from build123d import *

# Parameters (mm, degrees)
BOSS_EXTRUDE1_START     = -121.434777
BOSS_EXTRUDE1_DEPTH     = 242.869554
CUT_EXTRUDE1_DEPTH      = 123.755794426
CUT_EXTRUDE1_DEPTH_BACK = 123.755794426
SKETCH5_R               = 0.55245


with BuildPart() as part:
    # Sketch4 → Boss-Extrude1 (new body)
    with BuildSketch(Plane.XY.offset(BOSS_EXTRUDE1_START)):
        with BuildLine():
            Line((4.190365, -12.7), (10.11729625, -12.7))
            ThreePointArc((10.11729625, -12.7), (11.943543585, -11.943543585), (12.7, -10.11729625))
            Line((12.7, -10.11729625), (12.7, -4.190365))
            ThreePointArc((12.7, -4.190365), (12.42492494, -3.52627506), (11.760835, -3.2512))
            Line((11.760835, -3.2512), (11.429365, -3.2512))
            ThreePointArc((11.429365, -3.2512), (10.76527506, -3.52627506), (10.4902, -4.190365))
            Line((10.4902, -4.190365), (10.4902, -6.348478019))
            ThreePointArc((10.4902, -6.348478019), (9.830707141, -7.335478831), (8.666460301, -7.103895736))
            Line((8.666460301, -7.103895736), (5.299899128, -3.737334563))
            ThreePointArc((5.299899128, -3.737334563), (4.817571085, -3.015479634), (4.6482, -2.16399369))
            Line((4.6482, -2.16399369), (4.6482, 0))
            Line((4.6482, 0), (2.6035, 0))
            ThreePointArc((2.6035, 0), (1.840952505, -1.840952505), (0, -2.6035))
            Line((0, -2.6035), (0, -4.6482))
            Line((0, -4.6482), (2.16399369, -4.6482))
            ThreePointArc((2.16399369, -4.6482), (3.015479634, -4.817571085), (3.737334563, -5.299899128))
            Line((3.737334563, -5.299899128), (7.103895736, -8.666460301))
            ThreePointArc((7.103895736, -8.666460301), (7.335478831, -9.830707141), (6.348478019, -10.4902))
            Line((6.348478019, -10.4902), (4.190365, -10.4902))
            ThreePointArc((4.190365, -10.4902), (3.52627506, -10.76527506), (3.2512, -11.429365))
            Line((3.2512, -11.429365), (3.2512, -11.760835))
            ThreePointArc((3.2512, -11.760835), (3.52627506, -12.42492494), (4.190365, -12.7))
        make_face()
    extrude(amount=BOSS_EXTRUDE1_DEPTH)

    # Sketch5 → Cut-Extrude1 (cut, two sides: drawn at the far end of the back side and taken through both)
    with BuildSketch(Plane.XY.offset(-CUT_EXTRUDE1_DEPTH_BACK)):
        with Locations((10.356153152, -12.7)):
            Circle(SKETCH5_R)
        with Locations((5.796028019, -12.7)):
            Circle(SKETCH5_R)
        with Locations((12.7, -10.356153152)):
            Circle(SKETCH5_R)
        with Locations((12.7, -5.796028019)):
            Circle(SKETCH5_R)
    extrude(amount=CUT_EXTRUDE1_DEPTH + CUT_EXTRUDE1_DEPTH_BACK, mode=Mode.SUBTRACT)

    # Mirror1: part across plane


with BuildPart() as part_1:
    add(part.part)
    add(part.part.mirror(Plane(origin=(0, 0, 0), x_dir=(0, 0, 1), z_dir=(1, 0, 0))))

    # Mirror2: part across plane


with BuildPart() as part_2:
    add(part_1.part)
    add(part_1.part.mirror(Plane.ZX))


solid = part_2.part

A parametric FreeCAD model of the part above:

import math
import FreeCAD as App
import Part
import Sketcher
from FreeCAD import Vector
Q = App.Units.Quantity

doc = App.newDocument("Part")
body = doc.addObject("PartDesign::Body", "Body")

# Sketch on XY plane
sketch1 = doc.addObject("Sketcher::SketchObject", "Sketch")
body.addObject(sketch1)
sketch1.AttachmentSupport = (doc.XY_Plane, [""])
sketch1.MapMode = "FlatFace"
sketch1.AttachmentOffset = App.Placement(Vector(0, 0, -121.434777), App.Rotation())
sketch1.addGeometry(Part.LineSegment(Vector(4.19, -12.7, 0), Vector(10.12, -12.7, 0)), False)
sketch1.addGeometry(Part.ArcOfCircle(Part.Circle(Vector(10.12, -10.12, 0), Vector(0, 0, 1), 2.58), math.radians(-90), math.radians(0)), False)
sketch1.addGeometry(Part.LineSegment(Vector(12.7, -10.12, 0), Vector(12.7, -4.19, 0)), False)
sketch1.addGeometry(Part.ArcOfCircle(Part.Circle(Vector(11.76, -4.19, 0), Vector(0, 0, 1), 0.94), math.radians(0), math.radians(90)), False)
sketch1.addGeometry(Part.LineSegment(Vector(11.76, -3.25, 0), Vector(11.43, -3.25, 0)), False)
sketch1.addGeometry(Part.ArcOfCircle(Part.Circle(Vector(11.43, -4.19, 0), Vector(0, 0, 1), 0.94), math.radians(90), math.radians(180)), False)
sketch1.addGeometry(Part.LineSegment(Vector(10.49, -4.19, 0), Vector(10.49, -6.35, 0)), False)
sketch1.addGeometry(Part.ArcOfCircle(Part.Circle(Vector(9.42, -6.35, 0), Vector(0, 0, 1), 1.07), math.radians(-135), math.radians(0)), False)
sketch1.addGeometry(Part.LineSegment(Vector(8.67, -7.1, 0), Vector(5.3, -3.74, 0)), False)
sketch1.addGeometry(Part.ArcOfCircle(Part.Circle(Vector(6.87, -2.16, 0), Vector(0, 0, 1), 2.23), math.radians(-180), math.radians(-135)), False)
sketch1.addGeometry(Part.LineSegment(Vector(4.65, -2.16, 0), Vector(4.65, 0, 0)), False)
sketch1.addGeometry(Part.LineSegment(Vector(4.65, 0, 0), Vector(2.6, 0, 0)), False)
sketch1.addGeometry(Part.ArcOfCircle(Part.Circle(Vector(0, 0, 0), Vector(0, 0, 1), 2.6), math.radians(-90), math.radians(0)), False)
sketch1.addGeometry(Part.LineSegment(Vector(0, -2.6, 0), Vector(0, -4.65, 0)), False)
sketch1.addGeometry(Part.LineSegment(Vector(0, -4.65, 0), Vector(2.16, -4.65, 0)), False)
sketch1.addGeometry(Part.ArcOfCircle(Part.Circle(Vector(2.16, -6.87, 0), Vector(0, 0, 1), 2.23), math.radians(45), math.radians(90)), False)
sketch1.addGeometry(Part.LineSegment(Vector(3.74, -5.3, 0), Vector(7.1, -8.67, 0)), False)
sketch1.addGeometry(Part.ArcOfCircle(Part.Circle(Vector(6.35, -9.42, 0), Vector(0, 0, 1), 1.07), math.radians(-90), math.radians(45)), False)
sketch1.addGeometry(Part.LineSegment(Vector(6.35, -10.49, 0), Vector(4.19, -10.49, 0)), False)
sketch1.addGeometry(Part.ArcOfCircle(Part.Circle(Vector(4.19, -11.43, 0), Vector(0, 0, 1), 0.94), math.radians(90), math.radians(180)), False)
sketch1.addGeometry(Part.LineSegment(Vector(3.25, -11.43, 0), Vector(3.25, -11.76, 0)), False)
sketch1.addGeometry(Part.ArcOfCircle(Part.Circle(Vector(4.19, -11.76, 0), Vector(0, 0, 1), 0.94), math.radians(-180), math.radians(-90)), False)
sketch1.addConstraint(Sketcher.Constraint("Tangent", 0, 2, 1, 1))
sketch1.addConstraint(Sketcher.Constraint("Tangent", 1, 2, 2, 1))
sketch1.addConstraint(Sketcher.Constraint("Tangent", 2, 2, 3, 1))
sketch1.addConstraint(Sketcher.Constraint("Tangent", 3, 2, 4, 1))
sketch1.addConstraint(Sketcher.Constraint("Tangent", 4, 2, 5, 1))
sketch1.addConstraint(Sketcher.Constraint("Tangent", 5, 2, 6, 1))
sketch1.addConstraint(Sketcher.Constraint("Tangent", 6, 2, 7, 2))
sketch1.addConstraint(Sketcher.Constraint("Tangent", 7, 1, 8, 1))
sketch1.addConstraint(Sketcher.Constraint("Tangent", 8, 2, 9, 2))
sketch1.addConstraint(Sketcher.Constraint("Tangent", 9, 1, 10, 1))
sketch1.addConstraint(Sketcher.Constraint("Coincident", 10, 2, 11, 1))
sketch1.addConstraint(Sketcher.Constraint("Coincident", 11, 2, 12, 2))
sketch1.addConstraint(Sketcher.Constraint("Coincident", 12, 1, 13, 1))
sketch1.addConstraint(Sketcher.Constraint("Coincident", 13, 2, 14, 1))
sketch1.addConstraint(Sketcher.Constraint("Tangent", 14, 2, 15, 2))
sketch1.addConstraint(Sketcher.Constraint("Tangent", 15, 1, 16, 1))
sketch1.addConstraint(Sketcher.Constraint("Tangent", 16, 2, 17, 2))
sketch1.addConstraint(Sketcher.Constraint("Tangent", 17, 1, 18, 1))
sketch1.addConstraint(Sketcher.Constraint("Tangent", 18, 2, 19, 1))
sketch1.addConstraint(Sketcher.Constraint("Tangent", 19, 2, 20, 1))
sketch1.addConstraint(Sketcher.Constraint("Tangent", 20, 2, 21, 1))
sketch1.addConstraint(Sketcher.Constraint("Tangent", 21, 2, 0, 1))
sketch1.addConstraint(Sketcher.Constraint("Horizontal", 0))
sketch1.addConstraint(Sketcher.Constraint("Vertical", 2))
sketch1.addConstraint(Sketcher.Constraint("Horizontal", 4))
sketch1.addConstraint(Sketcher.Constraint("Vertical", 6))
sketch1.addConstraint(Sketcher.Constraint("Vertical", 10))
sketch1.addConstraint(Sketcher.Constraint("Horizontal", 11))
sketch1.addConstraint(Sketcher.Constraint("Vertical", 13))
sketch1.addConstraint(Sketcher.Constraint("Horizontal", 14))
sketch1.addConstraint(Sketcher.Constraint("Horizontal", 18))
sketch1.addConstraint(Sketcher.Constraint("Vertical", 20))
sketch1.addConstraint(Sketcher.Constraint("Coincident", 12, 3, -1, 1))
sketch1.addConstraint(Sketcher.Constraint("Equal", 3, 5))
sketch1.addConstraint(Sketcher.Constraint("Equal", 9, 15))
sketch1.addConstraint(Sketcher.Constraint("Equal", 7, 17))
sketch1.addConstraint(Sketcher.Constraint("Equal", 5, 19))
sketch1.addConstraint(Sketcher.Constraint("Equal", 19, 21))
sketch1.addConstraint(Sketcher.Constraint("PointOnObject", 10, 2, -1))
sketch1.addConstraint(Sketcher.Constraint("PointOnObject", 12, 1, -2))
sketch1.addConstraint(Sketcher.Constraint("Parallel", 8, 16))
sketch1.addConstraint(Sketcher.Constraint("Equal", 0, 2))
sketch1.addConstraint(Sketcher.Constraint("Equal", 18, 6))
sketch1.addConstraint(Sketcher.Constraint("Equal", 14, 10))
sketch1.addConstraint(Sketcher.Constraint("Equal", 11, 13))
sketch1.addConstraint(Sketcher.Constraint("Equal", 4, 20))
sketch1.addConstraint(Sketcher.Constraint("Equal", 8, 16))
sketch1.addConstraint(Sketcher.Constraint("DistanceY", 0, 2, -1, 1, Q("0.5 in")))
sketch1.addConstraint(Sketcher.Constraint("Radius", 9, Q("0.0876 in")))
sketch1.addConstraint(Sketcher.Constraint("Radius", 12, Q("0.1025 in")))
sketch1.addConstraint(Sketcher.Constraint("DistanceX", 9, 1, 5, 2, Q("0.23 in")))
sketch1.addConstraint(Sketcher.Constraint("DistanceX", 11, 2, 11, 1, Q("0.0805 in")))
sketch1.addConstraint(Sketcher.Constraint("DistanceY", 3, 2, -1, 1, Q("0.128 in")))
sketch1.addConstraint(Sketcher.Constraint("Radius", 7, 1.068322))
sketch1.addConstraint(Sketcher.Constraint("DistanceX", 17, 3, 7, 3, Q("0.121 in")))
sketch1.addConstraint(Sketcher.Constraint("Radius", 1, 2.582704))
sketch1.addConstraint(Sketcher.Constraint("Radius", 3, 0.939165))
pad1 = doc.addObject("PartDesign::Pad", "Pad")
body.addObject(pad1)
pad1.Profile = sketch1
pad1.Length = 242.869554

# Sketch on XY plane
sketch2 = doc.addObject("Sketcher::SketchObject", "Sketch001")
body.addObject(sketch2)
sketch2.AttachmentSupport = (doc.XY_Plane, [""])
sketch2.MapMode = "FlatFace"
sketch2.addGeometry(Part.Circle(Vector(10.4, -12.7, 0), Vector(0, 0, 1), 0.6), False)
sketch2.addGeometry(Part.Circle(Vector(5.8, -12.7, 0), Vector(0, 0, 1), 0.6), False)
sketch2.addGeometry(Part.Circle(Vector(12.7, -10.4, 0), Vector(0, 0, 1), 0.6), False)
sketch2.addGeometry(Part.Circle(Vector(12.7, -5.8, 0), Vector(0, 0, 1), 0.6), False)
sketch2.addConstraint(Sketcher.Constraint("Equal", 0, 1))
sketch2.addConstraint(Sketcher.Constraint("Equal", 1, 2))
sketch2.addConstraint(Sketcher.Constraint("Equal", 2, 3))
sketch2.addConstraint(Sketcher.Constraint("Horizontal", 0, 3, 1, 3))
sketch2.addConstraint(Sketcher.Constraint("Vertical", 2, 3, 3, 3))
sketch2.addConstraint(Sketcher.Constraint("Diameter", 0, Q("0.0435 in")))
sketch2.addConstraint(Sketcher.Constraint("DistanceY", 0, 3, -1, 1, Q("0.5 in")))
sketch2.addConstraint(Sketcher.Constraint("DistanceX", -1, 1, 2, 3, Q("0.5 in")))
sketch2.addConstraint(Sketcher.Constraint("DistanceX", -1, 1, 1, 3, 5.796028))
sketch2.addConstraint(Sketcher.Constraint("DistanceY", 3, 3, -1, 1, 5.796028))
sketch2.addConstraint(Sketcher.Constraint("DistanceX", -1, 1, 0, 3, 10.356153))
sketch2.addConstraint(Sketcher.Constraint("DistanceY", 2, 3, -1, 1, 10.356153))
pocket1 = doc.addObject("PartDesign::Pocket", "Pocket")
body.addObject(pocket1)
pocket1.Profile = sketch2
pocket1.Type = "ThroughAll"
pocket1.Midplane = True
body2 = doc.addObject("PartDesign::Body", "Body001")
doc.recompute()

body2.BaseFeature = body
doc.recompute()

mirroring = doc.addObject("Part::Mirroring", "Mirroring")
mirroring.Source = body
mirroring.Base = Vector(0, 0, 0)
mirroring.Normal = Vector(1, 0, 0)
body3 = doc.addObject("PartDesign::Body", "Body002")
body3.BaseFeature = mirroring
boolean = doc.addObject("PartDesign::Boolean", "Boolean")
body2.addObject(boolean)
boolean.Type = "Fuse"
boolean.addObjects([body3])
doc.recompute()
body4 = doc.addObject("PartDesign::Body", "Body003")
doc.recompute()

body4.BaseFeature = body2
doc.recompute()

mirroring2 = doc.addObject("Part::Mirroring", "Mirroring001")
mirroring2.Source = body2
mirroring2.Base = Vector(0, 0, 0)
mirroring2.Normal = Vector(0, 1, 0)
body5 = doc.addObject("PartDesign::Body", "Body004")
body5.BaseFeature = mirroring2
boolean2 = doc.addObject("PartDesign::Boolean", "Boolean001")
body4.addObject(boolean2)
boolean2.Type = "Fuse"
boolean2.addObjects([body5])
doc.recompute()
mirroring.Visibility = False
mirroring2.Visibility = False

doc.recompute()
